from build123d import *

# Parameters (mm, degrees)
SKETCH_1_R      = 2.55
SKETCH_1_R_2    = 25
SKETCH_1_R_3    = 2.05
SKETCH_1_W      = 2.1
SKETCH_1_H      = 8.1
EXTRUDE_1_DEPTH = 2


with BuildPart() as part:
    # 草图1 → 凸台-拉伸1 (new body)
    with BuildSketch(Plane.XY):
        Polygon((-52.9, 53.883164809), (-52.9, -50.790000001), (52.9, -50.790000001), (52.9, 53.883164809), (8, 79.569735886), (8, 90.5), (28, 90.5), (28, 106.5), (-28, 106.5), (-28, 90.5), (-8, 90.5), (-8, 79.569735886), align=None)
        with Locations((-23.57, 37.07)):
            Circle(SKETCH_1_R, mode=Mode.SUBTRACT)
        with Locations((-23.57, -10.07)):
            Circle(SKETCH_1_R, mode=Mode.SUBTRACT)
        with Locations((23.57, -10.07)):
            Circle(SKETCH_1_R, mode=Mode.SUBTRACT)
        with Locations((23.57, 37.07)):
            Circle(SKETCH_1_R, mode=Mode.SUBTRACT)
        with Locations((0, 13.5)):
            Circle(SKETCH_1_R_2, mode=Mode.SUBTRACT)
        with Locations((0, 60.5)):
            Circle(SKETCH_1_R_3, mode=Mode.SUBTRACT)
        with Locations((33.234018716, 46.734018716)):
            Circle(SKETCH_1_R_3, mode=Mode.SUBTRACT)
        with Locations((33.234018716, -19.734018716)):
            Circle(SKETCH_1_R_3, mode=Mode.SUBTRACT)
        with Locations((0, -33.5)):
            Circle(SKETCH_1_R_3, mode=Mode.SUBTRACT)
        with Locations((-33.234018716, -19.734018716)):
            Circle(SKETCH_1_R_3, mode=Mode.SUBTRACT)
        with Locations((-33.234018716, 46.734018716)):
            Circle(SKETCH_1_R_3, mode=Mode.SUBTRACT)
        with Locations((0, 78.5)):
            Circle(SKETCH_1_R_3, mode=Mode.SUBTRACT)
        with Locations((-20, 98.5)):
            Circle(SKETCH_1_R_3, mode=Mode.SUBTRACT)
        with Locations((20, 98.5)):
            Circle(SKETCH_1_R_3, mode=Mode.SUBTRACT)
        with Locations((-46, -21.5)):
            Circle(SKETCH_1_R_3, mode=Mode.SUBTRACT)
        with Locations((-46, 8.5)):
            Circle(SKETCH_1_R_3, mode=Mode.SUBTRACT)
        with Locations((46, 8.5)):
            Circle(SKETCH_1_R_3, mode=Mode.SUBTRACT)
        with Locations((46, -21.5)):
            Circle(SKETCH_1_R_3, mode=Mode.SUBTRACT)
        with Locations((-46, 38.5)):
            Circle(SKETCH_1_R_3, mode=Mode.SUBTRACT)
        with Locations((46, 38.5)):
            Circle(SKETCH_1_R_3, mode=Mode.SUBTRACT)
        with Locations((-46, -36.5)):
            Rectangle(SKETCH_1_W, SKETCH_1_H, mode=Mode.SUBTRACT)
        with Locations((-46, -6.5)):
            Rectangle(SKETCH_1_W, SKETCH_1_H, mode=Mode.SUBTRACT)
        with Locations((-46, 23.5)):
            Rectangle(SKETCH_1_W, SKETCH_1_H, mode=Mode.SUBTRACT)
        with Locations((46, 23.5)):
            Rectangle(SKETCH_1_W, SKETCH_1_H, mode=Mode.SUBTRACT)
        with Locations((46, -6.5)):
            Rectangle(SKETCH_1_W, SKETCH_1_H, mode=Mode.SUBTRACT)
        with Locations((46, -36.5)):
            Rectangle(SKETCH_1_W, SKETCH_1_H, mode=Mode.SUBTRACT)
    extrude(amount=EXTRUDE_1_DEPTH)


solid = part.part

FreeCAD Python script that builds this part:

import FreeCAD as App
import Part
import Sketcher
from FreeCAD import Vector

doc = App.newDocument("Part")
body = doc.addObject("PartDesign::Body", "Body")

sketch1 = body.newObject("Sketcher::SketchObject", "Sketch")
sketch1.AttachmentSupport = (doc.getObject("XY_Plane"), [""])
sketch1.MapMode = "FlatFace"
sketch1.addGeometry(Part.LineSegment(Vector(-52.9, 53.9, 0), Vector(-52.9, -50.8, 0)), False)
sketch1.addGeometry(Part.LineSegment(Vector(-52.9, -50.8, 0), Vector(52.9, -50.8, 0)), False)
sketch1.addGeometry(Part.LineSegment(Vector(52.9, -50.8, 0), Vector(52.9, 53.9, 0)), False)
sketch1.addGeometry(Part.LineSegment(Vector(52.9, 53.9, 0), Vector(8, 79.6, 0)), False)
sketch1.addGeometry(Part.LineSegment(Vector(8, 79.6, 0), Vector(8, 90.5, 0)), False)
sketch1.addGeometry(Part.LineSegment(Vector(8, 90.5, 0), Vector(28, 90.5, 0)), False)
sketch1.addGeometry(Part.LineSegment(Vector(28, 90.5, 0), Vector(28, 106.5, 0)), False)
sketch1.addGeometry(Part.LineSegment(Vector(28, 106.5, 0), Vector(-28, 106.5, 0)), False)
sketch1.addGeometry(Part.LineSegment(Vector(-28, 106.5, 0), Vector(-28, 90.5, 0)), False)
sketch1.addGeometry(Part.LineSegment(Vector(-28, 90.5, 0), Vector(-8, 90.5, 0)), False)
sketch1.addGeometry(Part.LineSegment(Vector(-8, 90.5, 0), Vector(-8, 79.6, 0)), False)
sketch1.addGeometry(Part.LineSegment(Vector(-8, 79.6, 0), Vector(-52.9, 53.9, 0)), False)
sketch1.addGeometry(Part.LineSegment(Vector(-45, -40.5, 0), Vector(-47, -40.5, 0)), False)
sketch1.addGeometry(Part.LineSegment(Vector(-47, -40.5, 0), Vector(-47, -32.5, 0)), False)
sketch1.addGeometry(Part.LineSegment(Vector(-47, -32.5, 0), Vector(-45, -32.5, 0)), False)
sketch1.addGeometry(Part.LineSegment(Vector(-45, -32.5, 0), Vector(-45, -40.5, 0)), False)
sketch1.addGeometry(Part.Circle(Vector(-46, -21.5, 0), Vector(0, 0, 1), 2), False)
sketch1.addGeometry(Part.LineSegment(Vector(-45, -10.6, 0), Vector(-47, -10.6, 0)), False)
sketch1.addGeometry(Part.LineSegment(Vector(-47, -10.6, 0), Vector(-47, -2.5, 0)), False)
sketch1.addGeometry(Part.LineSegment(Vector(-47, -2.5, 0), Vector(-45, -2.5, 0)), False)
sketch1.addGeometry(Part.LineSegment(Vector(-45, -2.5, 0), Vector(-45, -10.6, 0)), False)
sketch1.addGeometry(Part.Circle(Vector(-33.2, -19.7, 0), Vector(0, 0, 1), 2), False)
sketch1.addGeometry(Part.Circle(Vector(-23.6, -10.1, 0), Vector(0, 0, 1), 2.5), False)
sketch1.addGeometry(Part.Circle(Vector(-46, 8.5, 0), Vector(0, 0, 1), 2), False)
sketch1.addGeometry(Part.LineSegment(Vector(-45, 19.4, 0), Vector(-47, 19.4, 0)), False)
sketch1.addGeometry(Part.LineSegment(Vector(-47, 19.4, 0), Vector(-47, 27.6, 0)), False)
sketch1.addGeometry(Part.LineSegment(Vector(-47, 27.6, 0), Vector(-45, 27.6, 0)), False)
sketch1.addGeometry(Part.LineSegment(Vector(-45, 27.6, 0), Vector(-45, 19.4, 0)), False)
sketch1.addGeometry(Part.Circle(Vector(0, -33.5, 0), Vector(0, 0, 1), 2), False)
sketch1.addGeometry(Part.Circle(Vector(23.6, -10.1, 0), Vector(0, 0, 1), 2.5), False)
sketch1.addGeometry(Part.LineSegment(Vector(47, -40.5, 0), Vector(45, -40.5, 0)), False)
sketch1.addGeometry(Part.LineSegment(Vector(45, -40.5, 0), Vector(45, -32.5, 0)), False)
sketch1.addGeometry(Part.LineSegment(Vector(45, -32.5, 0), Vector(47, -32.5, 0)), False)
sketch1.addGeometry(Part.LineSegment(Vector(47, -32.5, 0), Vector(47, -40.5, 0)), False)
sketch1.addGeometry(Part.Circle(Vector(33.2, -19.7, 0), Vector(0, 0, 1), 2), False)
sketch1.addGeometry(Part.Circle(Vector(46, -21.5, 0), Vector(0, 0, 1), 2), False)
sketch1.addGeometry(Part.LineSegment(Vector(47, -10.6, 0), Vector(45, -10.6, 0)), False)
sketch1.addGeometry(Part.LineSegment(Vector(45, -10.6, 0), Vector(45, -2.5, 0)), False)
sketch1.addGeometry(Part.LineSegment(Vector(45, -2.5, 0), Vector(47, -2.5, 0)), False)
sketch1.addGeometry(Part.LineSegment(Vector(47, -2.5, 0), Vector(47, -10.6, 0)), False)
sketch1.addGeometry(Part.Circle(Vector(0, 13.5, 0), Vector(0, 0, 1), 25), False)
sketch1.addGeometry(Part.Circle(Vector(46, 8.5, 0), Vector(0, 0, 1), 2), False)
sketch1.addGeometry(Part.LineSegment(Vector(47, 19.4, 0), Vector(45, 19.4, 0)), False)
sketch1.addGeometry(Part.LineSegment(Vector(45, 19.4, 0), Vector(45, 27.6, 0)), False)
sketch1.addGeometry(Part.LineSegment(Vector(45, 27.6, 0), Vector(47, 27.6, 0)), False)
sketch1.addGeometry(Part.LineSegment(Vector(47, 27.6, 0), Vector(47, 19.4, 0)), False)
sketch1.addGeometry(Part.Circle(Vector(-46, 38.5, 0), Vector(0, 0, 1), 2), False)
sketch1.addGeometry(Part.Circle(Vector(-33.2, 46.7, 0), Vector(0, 0, 1), 2), False)
sketch1.addGeometry(Part.Circle(Vector(-23.6, 37.1, 0), Vector(0, 0, 1), 2.5), False)
sketch1.addGeometry(Part.Circle(Vector(-20, 98.5, 0), Vector(0, 0, 1), 2), False)
sketch1.addGeometry(Part.Circle(Vector(23.6, 37.1, 0), Vector(0, 0, 1), 2.5), False)
sketch1.addGeometry(Part.Circle(Vector(0, 60.5, 0), Vector(0, 0, 1), 2), False)
sketch1.addGeometry(Part.Circle(Vector(33.2, 46.7, 0), Vector(0, 0, 1), 2), False)
sketch1.addGeometry(Part.Circle(Vector(46, 38.5, 0), Vector(0, 0, 1), 2), False)
sketch1.addGeometry(Part.Circle(Vector(0, 78.5, 0), Vector(0, 0, 1), 2), False)
sketch1.addGeometry(Part.Circle(Vector(20, 98.5, 0), Vector(0, 0, 1), 2), False)
sketch1.addConstraint(Sketcher.Constraint("Coincident", 0, 2, 1, 1))
sketch1.addConstraint(Sketcher.Constraint("Coincident", 1, 2, 2, 1))
sketch1.addConstraint(Sketcher.Constraint("Coincident", 2, 2, 3, 1))
sketch1.addConstraint(Sketcher.Constraint("Coincident", 3, 2, 4, 1))
sketch1.addConstraint(Sketcher.Constraint("Coincident", 4, 2, 5, 1))
sketch1.addConstraint(Sketcher.Constraint("Coincident", 5, 2, 6, 1))
sketch1.addConstraint(Sketcher.Constraint("Coincident", 6, 2, 7, 1))
sketch1.addConstraint(Sketcher.Constraint("Coincident", 7, 2, 8, 1))
sketch1.addConstraint(Sketcher.Constraint("Coincident", 8, 2, 9, 1))
sketch1.addConstraint(Sketcher.Constraint("Coincident", 9, 2, 10, 1))
sketch1.addConstraint(Sketcher.Constraint("Coincident", 10, 2, 11, 1))
sketch1.addConstraint(Sketcher.Constraint("Coincident", 11, 2, 0, 1))
sketch1.addConstraint(Sketcher.Constraint("Coincident", 12, 2, 13, 1))
sketch1.addConstraint(Sketcher.Constraint("Coincident", 13, 2, 14, 1))
sketch1.addConstraint(Sketcher.Constraint("Coincident", 14, 2, 15, 1))
sketch1.addConstraint(Sketcher.Constraint("Coincident", 15, 2, 12, 1))
sketch1.addConstraint(Sketcher.Constraint("Coincident", 17, 2, 18, 1))
sketch1.addConstraint(Sketcher.Constraint("Coincident", 18, 2, 19, 1))
sketch1.addConstraint(Sketcher.Constraint("Coincident", 19, 2, 20, 1))
sketch1.addConstraint(Sketcher.Constraint("Coincident", 20, 2, 17, 1))
sketch1.addConstraint(Sketcher.Constraint("Coincident", 24, 2, 25, 1))
sketch1.addConstraint(Sketcher.Constraint("Coincident", 25, 2, 26, 1))
sketch1.addConstraint(Sketcher.Constraint("Coincident", 26, 2, 27, 1))
sketch1.addConstraint(Sketcher.Constraint("Coincident", 27, 2, 24, 1))
sketch1.addConstraint(Sketcher.Constraint("Coincident", 30, 2, 31, 1))
sketch1.addConstraint(Sketcher.Constraint("Coincident", 31, 2, 32, 1))
sketch1.addConstraint(Sketcher.Constraint("Coincident", 32, 2, 33, 1))
sketch1.addConstraint(Sketcher.Constraint("Coincident", 33, 2, 30, 1))
sketch1.addConstraint(Sketcher.Constraint("Coincident", 36, 2, 37, 1))
sketch1.addConstraint(Sketcher.Constraint("Coincident", 37, 2, 38, 1))
sketch1.addConstraint(Sketcher.Constraint("Coincident", 38, 2, 39, 1))
sketch1.addConstraint(Sketcher.Constraint("Coincident", 39, 2, 36, 1))
sketch1.addConstraint(Sketcher.Constraint("Coincident", 42, 2, 43, 1))
sketch1.addConstraint(Sketcher.Constraint("Coincident", 43, 2, 44, 1))
sketch1.addConstraint(Sketcher.Constraint("Coincident", 44, 2, 45, 1))
sketch1.addConstraint(Sketcher.Constraint("Coincident", 45, 2, 42, 1))
sketch1.addConstraint(Sketcher.Constraint("Vertical", 0))
sketch1.addConstraint(Sketcher.Constraint("Horizontal", 1))
sketch1.addConstraint(Sketcher.Constraint("Vertical", 2))
sketch1.addConstraint(Sketcher.Constraint("Vertical", 4))
sketch1.addConstraint(Sketcher.Constraint("Horizontal", 5))
sketch1.addConstraint(Sketcher.Constraint("Vertical", 6))
sketch1.addConstraint(Sketcher.Constraint("Horizontal", 7))
sketch1.addConstraint(Sketcher.Constraint("Vertical", 8))
sketch1.addConstraint(Sketcher.Constraint("Horizontal", 9))
sketch1.addConstraint(Sketcher.Constraint("Vertical", 10))
sketch1.addConstraint(Sketcher.Constraint("Horizontal", 12))
sketch1.addConstraint(Sketcher.Constraint("Vertical", 13))
sketch1.addConstraint(Sketcher.Constraint("Horizontal", 14))
sketch1.addConstraint(Sketcher.Constraint("Vertical", 15))
sketch1.addConstraint(Sketcher.Constraint("Horizontal", 17))
sketch1.addConstraint(Sketcher.Constraint("Vertical", 18))
sketch1.addConstraint(Sketcher.Constraint("Horizontal", 19))
sketch1.addConstraint(Sketcher.Constraint("Vertical", 20))
sketch1.addConstraint(Sketcher.Constraint("Horizontal", 24))
sketch1.addConstraint(Sketcher.Constraint("Vertical", 25))
sketch1.addConstraint(Sketcher.Constraint("Horizontal", 26))
sketch1.addConstraint(Sketcher.Constraint("Vertical", 27))
sketch1.addConstraint(Sketcher.Constraint("Horizontal", 30))
sketch1.addConstraint(Sketcher.Constraint("Vertical", 31))
sketch1.addConstraint(Sketcher.Constraint("Horizontal", 32))
sketch1.addConstraint(Sketcher.Constraint("Vertical", 33))
sketch1.addConstraint(Sketcher.Constraint("Horizontal", 36))
sketch1.addConstraint(Sketcher.Constraint("Vertical", 37))
sketch1.addConstraint(Sketcher.Constraint("Horizontal", 38))
sketch1.addConstraint(Sketcher.Constraint("Vertical", 39))
sketch1.addConstraint(Sketcher.Constraint("Horizontal", 42))
sketch1.addConstraint(Sketcher.Constraint("Vertical", 43))
sketch1.addConstraint(Sketcher.Constraint("Horizontal", 44))
sketch1.addConstraint(Sketcher.Constraint("Vertical", 45))
sketch1.addConstraint(Sketcher.Constraint("Equal", 16, 21))
sketch1.addConstraint(Sketcher.Constraint("Equal", 21, 23))
sketch1.addConstraint(Sketcher.Constraint("Equal", 23, 28))
sketch1.addConstraint(Sketcher.Constraint("Equal", 22, 29))
sketch1.addConstraint(Sketcher.Constraint("Equal", 28, 34))
sketch1.addConstraint(Sketcher.Constraint("Equal", 34, 35))
sketch1.addConstraint(Sketcher.Constraint("Equal", 35, 41))
sketch1.addConstraint(Sketcher.Constraint("Equal", 41, 46))
sketch1.addConstraint(Sketcher.Constraint("Equal", 46, 47))
sketch1.addConstraint(Sketcher.Constraint("Equal", 29, 48))
sketch1.addConstraint(Sketcher.Constraint("Equal", 47, 49))
sketch1.addConstraint(Sketcher.Constraint("Equal", 48, 50))
sketch1.addConstraint(Sketcher.Constraint("Equal", 49, 51))
sketch1.addConstraint(Sketcher.Constraint("Equal", 51, 52))
sketch1.addConstraint(Sketcher.Constraint("Equal", 52, 53))
sketch1.addConstraint(Sketcher.Constraint("Equal", 53, 54))
sketch1.addConstraint(Sketcher.Constraint("Equal", 54, 55))
sketch1.addConstraint(Sketcher.Constraint("Symmetric", 22, 3, 29, 3, -2))
sketch1.addConstraint(Sketcher.Constraint("Symmetric", 21, 3, 34, 3, -2))
sketch1.addConstraint(Sketcher.Constraint("Symmetric", 16, 3, 35, 3, -2))
sketch1.addConstraint(Sketcher.Constraint("Symmetric", 23, 3, 41, 3, -2))
sketch1.addConstraint(Sketcher.Constraint("Symmetric", 48, 3, 50, 3, -2))
sketch1.addConstraint(Sketcher.Constraint("Symmetric", 47, 3, 52, 3, -2))
sketch1.addConstraint(Sketcher.Constraint("Symmetric", 46, 3, 53, 3, -2))
sketch1.addConstraint(Sketcher.Constraint("Symmetric", 49, 3, 55, 3, -2))
sketch1.addConstraint(Sketcher.Constraint("Symmetric", 5, 2, 8, 2, -2))
sketch1.addConstraint(Sketcher.Constraint("Symmetric", 3, 2, 10, 2, -2))
sketch1.addConstraint(Sketcher.Constraint("Symmetric", 2, 2, 11, 2, -2))
sketch1.addConstraint(Sketcher.Constraint("Symmetric", 15, 2, 30, 2, -2))
sketch1.addConstraint(Sketcher.Constraint("Symmetric", 13, 2, 32, 2, -2))
sketch1.addConstraint(Sketcher.Constraint("Symmetric", 20, 2, 36, 2, -2))
sketch1.addConstraint(Sketcher.Constraint("Symmetric", 18, 2, 38, 2, -2))
sketch1.addConstraint(Sketcher.Constraint("Symmetric", 27, 2, 42, 2, -2))
sketch1.addConstraint(Sketcher.Constraint("Symmetric", 25, 2, 44, 2, -2))
sketch1.addConstraint(Sketcher.Constraint("PointOnObject", 28, 3, -2))
sketch1.addConstraint(Sketcher.Constraint("PointOnObject", 40, 3, -2))
sketch1.addConstraint(Sketcher.Constraint("PointOnObject", 51, 3, -2))
sketch1.addConstraint(Sketcher.Constraint("PointOnObject", 54, 3, -2))
sketch1.addConstraint(Sketcher.Constraint("Vertical", 16, 3, 23, 3))
sketch1.addConstraint(Sketcher.Constraint("Vertical", 23, 3, 46, 3))
sketch1.addConstraint(Sketcher.Constraint("Vertical", 21, 3, 47, 3))
sketch1.addConstraint(Sketcher.Constraint("Vertical", 22, 3, 48, 3))
sketch1.addConstraint(Sketcher.Constraint("Vertical", 13, 2, 17, 2))
sketch1.addConstraint(Sketcher.Constraint("Vertical", 15, 2, 19, 2))
sketch1.addConstraint(Sketcher.Constraint("Vertical", 18, 2, 24, 2))
sketch1.addConstraint(Sketcher.Constraint("Vertical", 20, 2, 26, 2))
sketch1.addConstraint(Sketcher.Constraint("Equal", 15, 18))
sketch1.addConstraint(Sketcher.Constraint("Equal", 20, 25))
sketch1.addConstraint(Sketcher.Constraint("Diameter", 40, 50.0))
sketch1.addConstraint(Sketcher.Constraint("Diameter", 16, 4.1))
sketch1.addConstraint(Sketcher.Constraint("Diameter", 22, 5.1))
sketch1.addConstraint(Sketcher.Constraint("DistanceX", 5, 1, 5, 2, 20.0))
sketch1.addConstraint(Sketcher.Constraint("DistanceX", 7, 2, 7, 1, 56.0))
sketch1.addConstraint(Sketcher.Constraint("DistanceY", 6, 1, 6, 2, 16.0))
sketch1.addConstraint(Sketcher.Constraint("DistanceX", 1, 1, 1, 2, 105.8))
sketch1.addConstraint(Sketcher.Constraint("DistanceX", 12, 2, 12, 1, 2.1))
sketch1.addConstraint(Sketcher.Constraint("DistanceY", 13, 1, 13, 2, 8.1))
sketch1.addConstraint(Sketcher.Constraint("DistanceX", 16, 3, -1, 1, 46.0))
sketch1.addConstraint(Sketcher.Constraint("DistanceX", 49, 3, -1, 1, 20.0))
sketch1.addConstraint(Sketcher.Constraint("DistanceY", 16, 3, 23, 3, 30.0))
sketch1.addConstraint(Sketcher.Constraint("DistanceY", 28, 3, 16, 3, 12.0))
sketch1.addConstraint(Sketcher.Constraint("DistanceY", 23, 3, 40, 3, 5.0))
sketch1.addConstraint(Sketcher.Constraint("DistanceY", 23, 3, 46, 3, 30.0))
sketch1.addConstraint(Sketcher.Constraint("DistanceY", 46, 3, 49, 3, 60.0))
sketch1.addConstraint(Sketcher.Constraint("DistanceY", 51, 3, 49, 3, 38.0))
sketch1.addConstraint(Sketcher.Constraint("DistanceY", 51, 3, 54, 3, 18.0))
sketch1.addConstraint(Sketcher.Constraint("DistanceY", 54, 3, 4, 2, 12.0))
sketch1.addConstraint(Sketcher.Constraint("DistanceY", 16, 3, -1, 1, 21.5))
sketch1.addConstraint(Sketcher.Constraint("DistanceY", 13, 2, 17, 2, 21.9))
sketch1.addConstraint(Sketcher.Constraint("DistanceY", 18, 2, 24, 2, 21.9))
sketch1.addConstraint(Sketcher.Constraint("DistanceX", 22, 3, -1, 1, 23.57))
sketch1.addConstraint(Sketcher.Constraint("DistanceY", 22, 3, -1, 1, 10.07))
sketch1.addConstraint(Sketcher.Constraint("DistanceY", -1, 1, 48, 3, 37.07))
sketch1.addConstraint(Sketcher.Constraint("DistanceY", 0, 2, -1, 1, 50.79))
sketch1.addConstraint(Sketcher.Constraint("DistanceX", 12, 2, -1, 1, 47.05))
sketch1.addConstraint(Sketcher.Constraint("DistanceY", 12, 2, -1, 1, 40.55))
sketch1.addConstraint(Sketcher.Constraint("Distance", 3, 51.728231))
sketch1.addConstraint(Sketcher.Constraint("DistanceY", 0, 2, 0, 1, 104.673165))
sketch1.addConstraint(Sketcher.Constraint("DistanceX", 21, 3, -1, 1, 33.234019))
sketch1.addConstraint(Sketcher.Constraint("DistanceY", 21, 3, -1, 1, 19.734019))
sketch1.addConstraint(Sketcher.Constraint("DistanceY", -1, 1, 47, 3, 46.734019))
pad1 = body.newObject("PartDesign::Pad", "Pad")
pad1.Profile = sketch1
pad1.Length = 2

doc.recompute()
